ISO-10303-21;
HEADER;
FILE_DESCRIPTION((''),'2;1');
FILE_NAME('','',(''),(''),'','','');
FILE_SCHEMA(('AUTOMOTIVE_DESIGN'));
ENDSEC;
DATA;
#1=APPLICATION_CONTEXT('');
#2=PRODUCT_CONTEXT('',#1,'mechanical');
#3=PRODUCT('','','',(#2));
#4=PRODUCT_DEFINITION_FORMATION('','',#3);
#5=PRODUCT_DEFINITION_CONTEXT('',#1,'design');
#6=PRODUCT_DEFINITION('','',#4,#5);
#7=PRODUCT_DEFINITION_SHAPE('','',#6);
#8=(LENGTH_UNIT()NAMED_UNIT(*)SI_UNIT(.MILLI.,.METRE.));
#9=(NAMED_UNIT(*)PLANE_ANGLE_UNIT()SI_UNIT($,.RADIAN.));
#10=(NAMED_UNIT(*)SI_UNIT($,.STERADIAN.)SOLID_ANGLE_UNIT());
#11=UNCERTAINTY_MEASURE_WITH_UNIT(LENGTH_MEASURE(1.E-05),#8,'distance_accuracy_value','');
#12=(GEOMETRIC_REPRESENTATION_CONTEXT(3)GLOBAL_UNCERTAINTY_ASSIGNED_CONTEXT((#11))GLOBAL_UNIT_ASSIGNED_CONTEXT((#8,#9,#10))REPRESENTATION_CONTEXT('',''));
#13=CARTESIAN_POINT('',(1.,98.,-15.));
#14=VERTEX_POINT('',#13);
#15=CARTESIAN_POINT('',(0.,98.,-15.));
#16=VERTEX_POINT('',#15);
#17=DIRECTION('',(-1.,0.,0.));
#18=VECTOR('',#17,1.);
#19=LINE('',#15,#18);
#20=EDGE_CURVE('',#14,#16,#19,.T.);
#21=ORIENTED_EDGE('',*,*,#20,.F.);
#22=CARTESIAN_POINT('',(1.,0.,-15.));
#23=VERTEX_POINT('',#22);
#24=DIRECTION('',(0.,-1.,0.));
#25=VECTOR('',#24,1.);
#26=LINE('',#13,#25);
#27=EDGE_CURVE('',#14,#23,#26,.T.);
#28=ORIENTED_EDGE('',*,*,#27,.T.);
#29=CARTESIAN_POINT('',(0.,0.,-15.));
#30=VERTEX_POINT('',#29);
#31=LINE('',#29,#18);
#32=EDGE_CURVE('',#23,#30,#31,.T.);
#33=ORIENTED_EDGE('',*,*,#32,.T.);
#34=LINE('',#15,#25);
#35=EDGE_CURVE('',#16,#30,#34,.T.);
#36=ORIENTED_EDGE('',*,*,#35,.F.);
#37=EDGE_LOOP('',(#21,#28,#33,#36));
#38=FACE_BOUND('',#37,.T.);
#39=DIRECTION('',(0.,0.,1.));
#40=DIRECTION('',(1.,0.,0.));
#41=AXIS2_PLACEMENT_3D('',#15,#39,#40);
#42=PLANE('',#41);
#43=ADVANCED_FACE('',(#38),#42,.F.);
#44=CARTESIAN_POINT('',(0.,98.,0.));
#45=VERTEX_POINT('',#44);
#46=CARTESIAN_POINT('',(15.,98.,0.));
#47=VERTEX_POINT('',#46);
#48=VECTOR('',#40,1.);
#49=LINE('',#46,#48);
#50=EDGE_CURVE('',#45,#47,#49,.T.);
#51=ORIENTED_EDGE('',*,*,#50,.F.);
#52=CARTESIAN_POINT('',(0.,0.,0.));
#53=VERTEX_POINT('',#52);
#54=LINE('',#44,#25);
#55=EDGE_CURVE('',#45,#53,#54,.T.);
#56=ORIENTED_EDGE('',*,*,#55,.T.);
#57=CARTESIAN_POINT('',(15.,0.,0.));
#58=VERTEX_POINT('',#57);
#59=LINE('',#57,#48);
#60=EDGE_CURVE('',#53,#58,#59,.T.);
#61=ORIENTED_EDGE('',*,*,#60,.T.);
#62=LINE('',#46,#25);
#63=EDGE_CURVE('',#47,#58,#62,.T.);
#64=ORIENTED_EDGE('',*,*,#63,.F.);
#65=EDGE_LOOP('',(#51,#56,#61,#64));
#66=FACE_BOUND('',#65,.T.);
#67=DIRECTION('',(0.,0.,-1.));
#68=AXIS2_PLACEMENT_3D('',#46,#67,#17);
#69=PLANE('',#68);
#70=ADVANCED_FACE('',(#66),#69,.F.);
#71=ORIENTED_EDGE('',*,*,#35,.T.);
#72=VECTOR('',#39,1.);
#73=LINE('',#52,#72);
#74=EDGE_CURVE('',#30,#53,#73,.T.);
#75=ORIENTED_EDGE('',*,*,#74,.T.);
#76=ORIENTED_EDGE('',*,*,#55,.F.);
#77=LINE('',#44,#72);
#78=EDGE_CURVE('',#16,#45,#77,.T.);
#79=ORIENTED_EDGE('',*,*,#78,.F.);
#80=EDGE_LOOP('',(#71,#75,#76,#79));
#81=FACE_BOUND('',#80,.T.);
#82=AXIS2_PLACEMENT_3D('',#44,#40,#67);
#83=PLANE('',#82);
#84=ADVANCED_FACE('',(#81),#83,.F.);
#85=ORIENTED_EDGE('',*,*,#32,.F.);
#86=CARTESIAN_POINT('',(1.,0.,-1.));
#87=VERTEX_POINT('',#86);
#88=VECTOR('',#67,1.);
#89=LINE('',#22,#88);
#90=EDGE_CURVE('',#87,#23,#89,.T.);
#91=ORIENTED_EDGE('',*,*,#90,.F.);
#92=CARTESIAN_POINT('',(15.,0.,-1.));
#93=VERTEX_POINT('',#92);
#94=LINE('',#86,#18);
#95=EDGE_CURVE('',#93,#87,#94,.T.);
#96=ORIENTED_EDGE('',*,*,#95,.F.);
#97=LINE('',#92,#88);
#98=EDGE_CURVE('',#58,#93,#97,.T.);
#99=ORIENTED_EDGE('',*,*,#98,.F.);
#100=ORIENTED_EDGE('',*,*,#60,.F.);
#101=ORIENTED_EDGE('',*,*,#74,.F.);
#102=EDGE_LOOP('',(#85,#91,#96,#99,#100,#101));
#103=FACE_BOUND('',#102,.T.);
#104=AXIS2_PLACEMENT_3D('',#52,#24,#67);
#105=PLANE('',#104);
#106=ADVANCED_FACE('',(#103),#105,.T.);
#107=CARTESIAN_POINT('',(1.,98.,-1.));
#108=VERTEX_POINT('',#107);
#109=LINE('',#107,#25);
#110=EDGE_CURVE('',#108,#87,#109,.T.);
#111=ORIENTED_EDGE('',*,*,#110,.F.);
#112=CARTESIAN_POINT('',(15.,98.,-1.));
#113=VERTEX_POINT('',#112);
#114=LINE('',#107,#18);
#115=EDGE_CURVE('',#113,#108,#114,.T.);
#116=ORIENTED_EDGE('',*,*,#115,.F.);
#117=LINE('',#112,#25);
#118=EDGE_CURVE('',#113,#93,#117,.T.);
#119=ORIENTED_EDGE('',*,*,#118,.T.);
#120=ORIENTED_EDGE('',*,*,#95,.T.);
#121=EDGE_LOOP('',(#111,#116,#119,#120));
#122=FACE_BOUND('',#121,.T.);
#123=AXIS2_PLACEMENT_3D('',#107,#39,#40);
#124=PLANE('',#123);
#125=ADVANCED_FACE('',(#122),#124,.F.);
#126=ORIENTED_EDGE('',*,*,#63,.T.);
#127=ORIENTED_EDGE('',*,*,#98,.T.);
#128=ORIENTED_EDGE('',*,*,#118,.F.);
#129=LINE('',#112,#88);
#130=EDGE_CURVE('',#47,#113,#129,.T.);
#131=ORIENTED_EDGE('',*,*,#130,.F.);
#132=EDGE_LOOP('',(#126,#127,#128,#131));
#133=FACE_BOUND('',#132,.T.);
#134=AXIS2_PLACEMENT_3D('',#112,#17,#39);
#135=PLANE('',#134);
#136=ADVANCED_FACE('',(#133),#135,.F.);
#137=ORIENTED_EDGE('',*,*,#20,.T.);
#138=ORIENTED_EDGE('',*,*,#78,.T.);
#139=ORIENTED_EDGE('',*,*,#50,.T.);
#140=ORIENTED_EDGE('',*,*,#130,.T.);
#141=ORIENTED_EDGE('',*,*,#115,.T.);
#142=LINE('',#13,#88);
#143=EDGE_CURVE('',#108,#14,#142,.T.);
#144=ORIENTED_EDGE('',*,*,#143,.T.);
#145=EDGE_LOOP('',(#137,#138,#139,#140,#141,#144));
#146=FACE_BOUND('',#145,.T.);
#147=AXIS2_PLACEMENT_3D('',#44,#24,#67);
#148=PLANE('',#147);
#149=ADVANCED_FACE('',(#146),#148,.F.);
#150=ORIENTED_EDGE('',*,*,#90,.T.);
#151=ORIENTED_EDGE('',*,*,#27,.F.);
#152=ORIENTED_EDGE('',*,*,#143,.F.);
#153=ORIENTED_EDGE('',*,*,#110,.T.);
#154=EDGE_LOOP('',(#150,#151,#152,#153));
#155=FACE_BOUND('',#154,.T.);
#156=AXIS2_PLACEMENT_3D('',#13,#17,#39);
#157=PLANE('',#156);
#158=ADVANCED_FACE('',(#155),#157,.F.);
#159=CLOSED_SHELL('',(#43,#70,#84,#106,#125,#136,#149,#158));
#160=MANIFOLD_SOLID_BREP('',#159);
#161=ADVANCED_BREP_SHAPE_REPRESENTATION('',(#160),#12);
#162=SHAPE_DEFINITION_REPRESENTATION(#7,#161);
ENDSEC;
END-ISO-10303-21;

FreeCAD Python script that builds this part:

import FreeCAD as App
import Part
import Sketcher
Q = App.Units.Quantity

doc = App.newDocument("Part")
params = doc.addObject("Spreadsheet::Sheet", "Params")
for row, (alias, value) in enumerate([
    ("sketch1_width", "15 mm"),
    ("sketch1_width2", "14 mm"),
    ("pad1_length", "98 mm"),
], start=1):
    params.set(f"A{row}", alias)
    params.set(f"B{row}", "=" + value)
    params.setAlias(f"B{row}", alias)

body = doc.addObject("PartDesign::Body", "Body")

# Sketch on XZ plane
sketch1 = body.newObject("Sketcher::SketchObject", "Sketch")
sketch1.AttachmentSupport = (doc.getObject("XZ_Plane"), [""])
sketch1.MapMode = "FlatFace"
sketch1.addGeometry([
    Part.LineSegment(App.Vector(0, -15, 0), App.Vector(0, 0, 0)),  # 0
    Part.LineSegment(App.Vector(0, 0, 0), App.Vector(15, 0, 0)),  # 1
    Part.LineSegment(App.Vector(15, 0, 0), App.Vector(15, -1, 0)),  # 2
    Part.LineSegment(App.Vector(15, -1, 0), App.Vector(1, -1, 0)),  # 3
    Part.LineSegment(App.Vector(1, -1, 0), App.Vector(1, -15, 0)),  # 4
    Part.LineSegment(App.Vector(1, -15, 0), App.Vector(0, -15, 0)),  # 5
], False)
sketch1.addConstraint([
    Sketcher.Constraint("Coincident", 0, 2, 1, 1),
    Sketcher.Constraint("Coincident", 1, 2, 2, 1),
    Sketcher.Constraint("Coincident", 2, 2, 3, 1),
    Sketcher.Constraint("Coincident", 3, 2, 4, 1),
    Sketcher.Constraint("Coincident", 4, 2, 5, 1),
    Sketcher.Constraint("Coincident", 5, 2, 0, 1),
    Sketcher.Constraint("Vertical", 0),
    Sketcher.Constraint("Horizontal", 1),
    Sketcher.Constraint("Vertical", 2),
    Sketcher.Constraint("Horizontal", 3),
    Sketcher.Constraint("Vertical", 4),
    Sketcher.Constraint("Horizontal", 5),
    Sketcher.Constraint("Coincident", 0, 2, -1, 1),
    Sketcher.Constraint("Equal", 1, 0),
    Sketcher.Constraint("Equal", 5, 2),
    Sketcher.Constraint("DistanceX", 1, 1, 1, 2, Q("15 mm")),
    Sketcher.Constraint("DistanceX", 3, 2, 3, 1, Q("14 mm")),
])
sketch1.setExpression("Constraints[15]", "Params.sketch1_width")
sketch1.setExpression("Constraints[16]", "Params.sketch1_width2")
pad1 = body.newObject("PartDesign::Pad", "Pad")
pad1.Profile = sketch1
pad1.setExpression("Length", "Params.pad1_length")
pad1.Reversed = True

doc.recompute()
